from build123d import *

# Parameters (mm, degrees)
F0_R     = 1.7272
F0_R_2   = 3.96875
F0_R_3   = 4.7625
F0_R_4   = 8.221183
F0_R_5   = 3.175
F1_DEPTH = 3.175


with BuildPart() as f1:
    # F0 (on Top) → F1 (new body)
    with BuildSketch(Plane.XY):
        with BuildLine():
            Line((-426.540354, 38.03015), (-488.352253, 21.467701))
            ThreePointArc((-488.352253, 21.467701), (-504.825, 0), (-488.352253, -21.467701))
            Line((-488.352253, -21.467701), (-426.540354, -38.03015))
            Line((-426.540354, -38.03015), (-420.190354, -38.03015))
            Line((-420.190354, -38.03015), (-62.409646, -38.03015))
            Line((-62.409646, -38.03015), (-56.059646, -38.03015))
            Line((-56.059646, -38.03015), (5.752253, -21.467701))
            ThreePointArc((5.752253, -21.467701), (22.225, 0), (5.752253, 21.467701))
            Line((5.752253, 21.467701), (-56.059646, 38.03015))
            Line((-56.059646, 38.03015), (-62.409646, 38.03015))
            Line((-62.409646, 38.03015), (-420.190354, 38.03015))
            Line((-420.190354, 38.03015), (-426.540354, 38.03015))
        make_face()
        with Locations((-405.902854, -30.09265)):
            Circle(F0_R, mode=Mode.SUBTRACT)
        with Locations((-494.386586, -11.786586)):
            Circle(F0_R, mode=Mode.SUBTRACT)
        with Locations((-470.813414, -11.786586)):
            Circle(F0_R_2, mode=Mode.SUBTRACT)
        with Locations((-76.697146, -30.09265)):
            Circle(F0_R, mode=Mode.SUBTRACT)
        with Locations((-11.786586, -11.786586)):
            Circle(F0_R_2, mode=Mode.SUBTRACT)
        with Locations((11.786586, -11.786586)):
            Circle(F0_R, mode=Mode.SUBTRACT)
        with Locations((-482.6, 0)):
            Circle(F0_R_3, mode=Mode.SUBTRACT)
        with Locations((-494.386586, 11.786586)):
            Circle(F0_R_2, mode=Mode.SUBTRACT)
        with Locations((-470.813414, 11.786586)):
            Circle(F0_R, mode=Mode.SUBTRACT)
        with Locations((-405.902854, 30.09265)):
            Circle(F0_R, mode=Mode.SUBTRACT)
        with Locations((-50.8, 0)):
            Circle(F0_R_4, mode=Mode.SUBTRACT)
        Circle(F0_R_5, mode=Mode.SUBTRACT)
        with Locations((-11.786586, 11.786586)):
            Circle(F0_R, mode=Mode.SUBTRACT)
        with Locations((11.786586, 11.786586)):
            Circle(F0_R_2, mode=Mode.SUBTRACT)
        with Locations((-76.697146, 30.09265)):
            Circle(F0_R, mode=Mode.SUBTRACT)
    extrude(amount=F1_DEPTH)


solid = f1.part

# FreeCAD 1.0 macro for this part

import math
import FreeCAD as App
import Part
import Sketcher
Q = App.Units.Quantity

doc = App.newDocument("Part")
body = doc.addObject("PartDesign::Body", "Body")

# Sketch on XY plane
sketch1 = doc.addObject("Sketcher::SketchObject", "Sketch")
body.addObject(sketch1)
sketch1.AttachmentSupport = (doc.XY_Plane, [""])
sketch1.MapMode = "FlatFace"
sketch1.addGeometry(Part.LineSegment(App.Vector(-426.540354, 38.03015, 0), App.Vector(-488.352253, 21.467701, 0)), False)
sketch1.addGeometry(Part.ArcOfCircle(Part.Circle(App.Vector(-482.600001, 0, 0), App.Vector(0, 0, 1), 22.224999), math.radians(104.999998), math.radians(255.000002)), False)
sketch1.addGeometry(Part.LineSegment(App.Vector(-488.352253, -21.467701, 0), App.Vector(-426.540354, -38.03015, 0)), False)
sketch1.addGeometry(Part.LineSegment(App.Vector(-426.540354, -38.03015, 0), App.Vector(-56.059646, -38.03015, 0)), False)
sketch1.addGeometry(Part.LineSegment(App.Vector(-56.059646, -38.03015, 0), App.Vector(5.752253, -21.467701, 0)), False)
sketch1.addGeometry(Part.ArcOfCircle(Part.Circle(App.Vector(0.000001, 0, 0), App.Vector(0, 0, 1), 22.224999), math.radians(-75.000002), math.radians(75.000002)), False)
sketch1.addGeometry(Part.LineSegment(App.Vector(5.752253, 21.467701, 0), App.Vector(-56.059646, 38.03015, 0)), False)
sketch1.addGeometry(Part.LineSegment(App.Vector(-56.059646, 38.03015, 0), App.Vector(-426.540354, 38.03015, 0)), False)
sketch1.addGeometry(Part.Circle(App.Vector(-405.902854, -30.09265, 0), App.Vector(0, 0, 1), 1.7272), False)
sketch1.addGeometry(Part.Circle(App.Vector(-494.386586, -11.786586, 0), App.Vector(0, 0, 1), 1.7272), False)
sketch1.addGeometry(Part.Circle(App.Vector(-470.813414, -11.786586, 0), App.Vector(0, 0, 1), 3.96875), False)
sketch1.addGeometry(Part.Circle(App.Vector(-482.6, 0, 0), App.Vector(0, 0, 1), 4.7625), False)
sketch1.addGeometry(Part.Circle(App.Vector(-76.697146, -30.09265, 0), App.Vector(0, 0, 1), 1.7272), False)
sketch1.addGeometry(Part.Circle(App.Vector(-11.786586, -11.786586, 0), App.Vector(0, 0, 1), 3.96875), False)
sketch1.addGeometry(Part.Circle(App.Vector(11.786586, -11.786586, 0), App.Vector(0, 0, 1), 1.7272), False)
sketch1.addGeometry(Part.Circle(App.Vector(-50.8, 0, 0), App.Vector(0, 0, 1), 8.221183), False)
sketch1.addGeometry(Part.Circle(App.Vector(0, 0, 0), App.Vector(0, 0, 1), 3.175), False)
sketch1.addGeometry(Part.Circle(App.Vector(-494.386586, 11.786586, 0), App.Vector(0, 0, 1), 3.96875), False)
sketch1.addGeometry(Part.Circle(App.Vector(-470.813414, 11.786586, 0), App.Vector(0, 0, 1), 1.7272), False)
sketch1.addGeometry(Part.Circle(App.Vector(-405.902854, 30.09265, 0), App.Vector(0, 0, 1), 1.7272), False)
sketch1.addGeometry(Part.Circle(App.Vector(-11.786586, 11.786586, 0), App.Vector(0, 0, 1), 1.7272), False)
sketch1.addGeometry(Part.Circle(App.Vector(11.786586, 11.786586, 0), App.Vector(0, 0, 1), 3.96875), False)
sketch1.addGeometry(Part.Circle(App.Vector(-76.697146, 30.09265, 0), App.Vector(0, 0, 1), 1.7272), False)
sketch1.addConstraint(Sketcher.Constraint("Tangent", 0, 2, 1, 1))
sketch1.addConstraint(Sketcher.Constraint("Tangent", 1, 2, 2, 1))
sketch1.addConstraint(Sketcher.Constraint("Coincident", 2, 2, 3, 1))
sketch1.addConstraint(Sketcher.Constraint("Coincident", 3, 2, 4, 1))
sketch1.addConstraint(Sketcher.Constraint("Tangent", 4, 2, 5, 1))
sketch1.addConstraint(Sketcher.Constraint("Tangent", 5, 2, 6, 1))
sketch1.addConstraint(Sketcher.Constraint("Coincident", 6, 2, 7, 1))
sketch1.addConstraint(Sketcher.Constraint("Coincident", 7, 2, 0, 1))
sketch1.addConstraint(Sketcher.Constraint("Horizontal", 3))
sketch1.addConstraint(Sketcher.Constraint("Horizontal", 7))
sketch1.addConstraint(Sketcher.Constraint("Coincident", 5, 3, -1, 1))
sketch1.addConstraint(Sketcher.Constraint("Coincident", 16, 3, -1, 1))
sketch1.addConstraint(Sketcher.Constraint("Coincident", 11, 3, 1, 3))
sketch1.addConstraint(Sketcher.Constraint("Equal", 1, 5))
sketch1.addConstraint(Sketcher.Constraint("Equal", 8, 9))
sketch1.addConstraint(Sketcher.Constraint("Equal", 9, 12))
sketch1.addConstraint(Sketcher.Constraint("Equal", 10, 13))
sketch1.addConstraint(Sketcher.Constraint("Equal", 12, 14))
sketch1.addConstraint(Sketcher.Constraint("Equal", 13, 17))
sketch1.addConstraint(Sketcher.Constraint("Equal", 14, 18))
sketch1.addConstraint(Sketcher.Constraint("Equal", 18, 19))
sketch1.addConstraint(Sketcher.Constraint("Equal", 19, 20))
sketch1.addConstraint(Sketcher.Constraint("Equal", 17, 21))
sketch1.addConstraint(Sketcher.Constraint("Equal", 20, 22))
sketch1.addConstraint(Sketcher.Constraint("Symmetric", 14, 3, 20, 3, -1, 1))
sketch1.addConstraint(Sketcher.Constraint("Symmetric", 13, 3, 21, 3, -1, 1))
sketch1.addConstraint(Sketcher.Constraint("Symmetric", 13, 3, 14, 3, -2))
sketch1.addConstraint(Sketcher.Constraint("Symmetric", 9, 3, 17, 3, -1))
sketch1.addConstraint(Sketcher.Constraint("Symmetric", 10, 3, 18, 3, -1))
sketch1.addConstraint(Sketcher.Constraint("Symmetric", 8, 3, 19, 3, -1))
sketch1.addConstraint(Sketcher.Constraint("Symmetric", 12, 3, 22, 3, -1))
sketch1.addConstraint(Sketcher.Constraint("Symmetric", 0, 2, 1, 2, -1))
sketch1.addConstraint(Sketcher.Constraint("Symmetric", 3, 2, 6, 2, -1))
sketch1.addConstraint(Sketcher.Constraint("PointOnObject", 15, 3, -1))
sketch1.addConstraint(Sketcher.Constraint("Parallel", 0, 4))
sketch1.addConstraint(Sketcher.Constraint("Horizontal", 9, 3, 10, 3))
sketch1.addConstraint(Sketcher.Constraint("Horizontal", 8, 3, 12, 3))
sketch1.addConstraint(Sketcher.Constraint("Horizontal", 10, 3, 13, 3))
sketch1.addConstraint(Sketcher.Constraint("Diameter", 16, Q("0.25 in")))
sketch1.addConstraint(Sketcher.Constraint("Diameter", 8, Q("0.136 in")))
sketch1.addConstraint(Sketcher.Constraint("Diameter", 10, Q("0.3125 in")))
sketch1.addConstraint(Sketcher.Constraint("Diameter", 11, Q("0.375 in")))
sketch1.addConstraint(Sketcher.Constraint("DistanceX", 1, 3, -1, 1, Q("19 in")))
sketch1.addConstraint(Sketcher.Constraint("DistanceX", 15, 3, -1, 1, Q("2 in")))
sketch1.addConstraint(Sketcher.Constraint("Angle", 0, Q("-164.999999 deg")))
sketch1.addConstraint(Sketcher.Constraint("Radius", 1, Q("0.875 in")))
sketch1.addConstraint(Sketcher.Constraint("DistanceX", 10, 3, 14, 3, Q("19 in")))
sketch1.addConstraint(Sketcher.Constraint("DistanceX", 2, 2, 8, 3, Q("0.8125 in")))
sketch1.addConstraint(Sketcher.Constraint("DistanceY", 2, 2, 8, 3, Q("0.3125 in")))
sketch1.addConstraint(Sketcher.Constraint("DistanceX", 12, 3, 3, 2, Q("0.8125 in")))
sketch1.addConstraint(Sketcher.Constraint("Diameter", 15, 16.442366))
sketch1.addConstraint(Sketcher.Constraint("DistanceY", 8, 3, 19, 3, Q("2.3695 in")))
sketch1.addConstraint(Sketcher.Constraint("DistanceX", 9, 3, 10, 3, 23.573172))
sketch1.addConstraint(Sketcher.Constraint("DistanceX", 10, 3, 8, 3, 64.91056))
sketch1.addConstraint(Sketcher.Constraint("DistanceY", 9, 3, 17, 3, 23.573172))
pad1 = doc.addObject("PartDesign::Pad", "Pad")
body.addObject(pad1)
pad1.Profile = sketch1
pad1.Length = Q("0.125 in")

doc.recompute()
